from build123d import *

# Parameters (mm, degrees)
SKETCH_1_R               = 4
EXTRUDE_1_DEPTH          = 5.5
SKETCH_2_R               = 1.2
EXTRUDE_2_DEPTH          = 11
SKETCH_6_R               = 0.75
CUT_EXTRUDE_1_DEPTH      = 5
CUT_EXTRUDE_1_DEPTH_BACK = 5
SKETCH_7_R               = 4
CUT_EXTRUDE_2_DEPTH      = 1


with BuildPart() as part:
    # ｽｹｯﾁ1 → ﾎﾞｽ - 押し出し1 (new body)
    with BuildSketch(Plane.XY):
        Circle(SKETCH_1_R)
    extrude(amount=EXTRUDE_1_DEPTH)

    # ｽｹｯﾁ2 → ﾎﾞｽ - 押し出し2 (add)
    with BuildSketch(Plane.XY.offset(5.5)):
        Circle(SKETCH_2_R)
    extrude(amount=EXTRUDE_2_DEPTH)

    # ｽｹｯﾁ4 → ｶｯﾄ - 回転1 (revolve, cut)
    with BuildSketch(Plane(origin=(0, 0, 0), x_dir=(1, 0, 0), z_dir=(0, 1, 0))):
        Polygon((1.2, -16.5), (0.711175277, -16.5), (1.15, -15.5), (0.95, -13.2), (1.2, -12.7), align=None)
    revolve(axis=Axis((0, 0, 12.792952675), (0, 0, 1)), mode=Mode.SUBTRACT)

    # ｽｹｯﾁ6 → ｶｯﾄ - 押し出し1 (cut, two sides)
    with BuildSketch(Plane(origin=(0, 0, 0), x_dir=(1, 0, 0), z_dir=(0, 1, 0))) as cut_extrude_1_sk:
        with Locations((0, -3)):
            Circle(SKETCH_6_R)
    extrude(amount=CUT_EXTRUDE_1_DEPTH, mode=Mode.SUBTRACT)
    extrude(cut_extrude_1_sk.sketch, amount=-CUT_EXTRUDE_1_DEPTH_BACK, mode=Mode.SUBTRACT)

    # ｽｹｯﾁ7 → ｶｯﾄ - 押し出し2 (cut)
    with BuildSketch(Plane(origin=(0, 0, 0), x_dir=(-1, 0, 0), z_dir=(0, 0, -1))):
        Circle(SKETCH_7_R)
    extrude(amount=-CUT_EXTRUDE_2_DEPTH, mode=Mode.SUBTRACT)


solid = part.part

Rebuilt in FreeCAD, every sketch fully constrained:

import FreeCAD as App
import Part
import Sketcher

V = App.Vector


def add_polygon(sketch, points):
    """Adds a closed chain of lines whose ends are joined by coincident constraints."""
    first, n = sketch.GeometryCount, len(points)
    for a, b in zip(points, points[1:] + points[:1]):
        sketch.addGeometry(Part.LineSegment(App.Vector(*a, 0), App.Vector(*b, 0)), False)
    for i in range(n):
        sketch.addConstraint(Sketcher.Constraint("Coincident", first + i, 2, first + (i + 1) % n, 1))

doc = App.newDocument("Part")
body = doc.addObject("PartDesign::Body", "Body")

sketch1 = body.newObject("Sketcher::SketchObject", "Sketch")
sketch1.AttachmentSupport = (doc.getObject("XY_Plane"), [""])
sketch1.MapMode = "FlatFace"
sketch1.addGeometry(Part.Circle(V(0, 0, 0), V(0, 0, 1), 4), False)
sketch1.addConstraint([
    Sketcher.Constraint("Coincident", 0, 3, -1, 1),
    Sketcher.Constraint("Diameter", 0, 8.0),
])
pad1 = body.newObject("PartDesign::Pad", "Pad")
pad1.Profile = sketch1
pad1.Length = 5.5

sketch2 = body.newObject("Sketcher::SketchObject", "Sketch001")
sketch2.AttachmentSupport = (doc.getObject("XY_Plane"), [""])
sketch2.MapMode = "FlatFace"
sketch2.AttachmentOffset = App.Placement(V(0, 0, 5.5), App.Rotation())
sketch2.addGeometry(Part.Circle(V(0, 0, 0), V(0, 0, 1), 1.2), False)
sketch2.addConstraint([
    Sketcher.Constraint("Coincident", 0, 3, -1, 1),
    Sketcher.Constraint("Diameter", 0, 2.4),
])
pad2 = body.newObject("PartDesign::Pad", "Pad001")
pad2.Profile = sketch2
pad2.Length = 11

sketch3 = body.newObject("Sketcher::SketchObject", "Sketch002")
sketch3.AttachmentSupport = (doc.getObject("XZ_Plane"), [""])
sketch3.MapMode = "FlatFace"
add_polygon(sketch3, [(0.71, 16.5), (1.2, 16.5), (1.2, 12.7), (0.95, 13.2), (1.15, 15.5)])
sketch3.addConstraint([
    Sketcher.Constraint("Horizontal", 0),
    Sketcher.Constraint("Vertical", 1),
    Sketcher.Constraint("DistanceY", 1, 2, 1, 1, 3.8),
    Sketcher.Constraint("DistanceY", 3, 2, 0, 2, 1.0),
    Sketcher.Constraint("DistanceX", -1, 1, 0, 2, 1.2),
    Sketcher.Constraint("DistanceY", -1, 1, 0, 2, 16.5),
    Sketcher.Constraint("DistanceY", -1, 1, 2, 2, 13.2),
    Sketcher.Constraint("DistanceX", 2, 2, 3, 2, 0.2),
    Sketcher.Constraint("DistanceX", -1, 1, 2, 2, 0.95),
    Sketcher.Constraint("DistanceX", 0, 1, 0, 2, 0.488825),
])
groove = body.newObject("PartDesign::Groove", "Groove")
groove.Profile = sketch3
groove.ReferenceAxis = (sketch3, ["V_Axis"])
groove.Angle = 360

sketch4 = body.newObject("Sketcher::SketchObject", "Sketch003")
sketch4.AttachmentSupport = (doc.getObject("XZ_Plane"), [""])
sketch4.MapMode = "FlatFace"
sketch4.addGeometry(Part.Circle(V(0, 3, 0), V(0, 0, 1), 0.8), False)
sketch4.addConstraint([
    Sketcher.Constraint("PointOnObject", 0, 3, -2),
    Sketcher.Constraint("Diameter", 0, 1.5),
    Sketcher.Constraint("DistanceY", -1, 1, 0, 3, 3.0),
])
pocket1 = body.newObject("PartDesign::Pocket", "Pocket")
pocket1.Profile = sketch4
pocket1.Type = "ThroughAll"
pocket1.Midplane = True

sketch5 = body.newObject("Sketcher::SketchObject", "Sketch004")
sketch5.AttachmentSupport = (doc.getObject("XY_Plane"), [""])
sketch5.MapMode = "FlatFace"
sketch5.addGeometry(Part.Circle(V(0, 0, 0), V(0, 0, 1), 4), False)
sketch5.addConstraint([
    Sketcher.Constraint("Coincident", 0, 3, -1, 1),
    Sketcher.Constraint("Diameter", 0, 8.0),
])
pocket2 = body.newObject("PartDesign::Pocket", "Pocket001")
pocket2.Profile = sketch5
pocket2.Length = 1
pocket2.Reversed = True

doc.recompute()
